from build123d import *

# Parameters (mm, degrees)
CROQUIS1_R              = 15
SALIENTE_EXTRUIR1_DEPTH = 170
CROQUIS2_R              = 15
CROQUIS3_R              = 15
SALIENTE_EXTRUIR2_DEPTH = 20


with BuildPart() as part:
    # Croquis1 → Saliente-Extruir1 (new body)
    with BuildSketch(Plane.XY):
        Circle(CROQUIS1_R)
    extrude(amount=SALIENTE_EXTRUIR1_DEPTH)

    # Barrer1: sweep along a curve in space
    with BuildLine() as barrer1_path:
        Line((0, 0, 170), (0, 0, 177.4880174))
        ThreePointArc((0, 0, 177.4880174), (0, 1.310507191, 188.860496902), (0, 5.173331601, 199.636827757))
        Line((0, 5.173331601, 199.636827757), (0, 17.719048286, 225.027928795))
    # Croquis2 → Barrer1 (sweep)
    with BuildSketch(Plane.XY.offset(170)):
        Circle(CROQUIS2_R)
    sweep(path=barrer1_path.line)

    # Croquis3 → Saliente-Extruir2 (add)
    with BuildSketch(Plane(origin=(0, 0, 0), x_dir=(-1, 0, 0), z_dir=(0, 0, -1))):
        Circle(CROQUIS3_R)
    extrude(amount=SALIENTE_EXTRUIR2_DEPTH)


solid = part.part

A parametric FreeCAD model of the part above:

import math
import FreeCAD as App
import Part
import Sketcher

doc = App.newDocument("Part")
body = doc.addObject("PartDesign::Body", "Body")

# Sketch on XY plane
sketch1 = body.newObject("Sketcher::SketchObject", "Sketch")
sketch1.AttachmentSupport = (doc.getObject("XY_Plane"), [""])
sketch1.MapMode = "FlatFace"
sketch1.addGeometry(Part.Circle(App.Vector(0, 0, 0), App.Vector(0, 0, 1), 15), False)
sketch1.addConstraint([
    Sketcher.Constraint("Coincident", 0, 3, -1, 1),
    Sketcher.Constraint("Diameter", 0, 30.0),
])
pad1 = body.newObject("PartDesign::Pad", "Pad")
pad1.Profile = sketch1
pad1.Length = 170

# Sketch on XY plane
sketch2 = body.newObject("Sketcher::SketchObject", "Sketch001")
sketch2.AttachmentSupport = (doc.getObject("XY_Plane"), [""])
sketch2.MapMode = "FlatFace"
sketch2.AttachmentOffset = App.Placement(App.Vector(0, 0, 170), App.Rotation())
sketch2.addGeometry(Part.Circle(App.Vector(0, 0, 0), App.Vector(0, 0, 1), 15), False)
sketch2.addConstraint([
    Sketcher.Constraint("Coincident", 0, 3, -1, 1),
    Sketcher.Constraint("Diameter", 0, 30.0),
])

# Sketch on YZ plane
sketch3 = body.newObject("Sketcher::SketchObject", "Sketch002")
sketch3.AttachmentSupport = (doc.getObject("YZ_Plane"), [""])
sketch3.MapMode = "FlatFace"
sketch3.addGeometry([
    Part.LineSegment(App.Vector(0, 170, 0), App.Vector(0, 177.488017, 0)),
    Part.ArcOfCircle(Part.Circle(App.Vector(50, 177.488017, 0), App.Vector(0, 0, 1), 50), math.radians(153.70607), math.radians(180)),
    Part.LineSegment(App.Vector(5.173332, 199.636828, 0), App.Vector(17.719048, 225.027929, 0)),
], False)
sketch3.addConstraint([
    Sketcher.Constraint("Tangent", 0, 2, 1, 2),
    Sketcher.Constraint("Tangent", 1, 1, 2, 1),
    Sketcher.Constraint("Vertical", 0),
    Sketcher.Constraint("PointOnObject", 0, 1, -2),
    Sketcher.Constraint("Radius", 1, 50.0),
    Sketcher.Constraint("DistanceY", -1, 1, 0, 1, 170.0),
    Sketcher.Constraint("DistanceY", 1, 1, 2, 2, 25.391101),
    Sketcher.Constraint("DistanceY", 0, 1, 0, 2, 7.488017),
    Sketcher.Constraint("DistanceX", -1, 1, 1, 1, 5.173332),
])
doc.recompute()

additivepipe = body.newObject("PartDesign::AdditivePipe", "AdditivePipe")
additivepipe.Profile = sketch2
additivepipe.Spine = (sketch3, ["Edge1", "Edge2", "Edge3"])

# Sketch on XY plane
sketch4 = body.newObject("Sketcher::SketchObject", "Sketch003")
sketch4.AttachmentSupport = (doc.getObject("XY_Plane"), [""])
sketch4.MapMode = "FlatFace"
sketch4.addGeometry(Part.Circle(App.Vector(0, 0, 0), App.Vector(0, 0, 1), 15), False)
sketch4.addConstraint([
    Sketcher.Constraint("Coincident", 0, 3, -1, 1),
    Sketcher.Constraint("Diameter", 0, 30.0),
])
pad2 = body.newObject("PartDesign::Pad", "Pad001")
pad2.Profile = sketch4
pad2.Length = 20
pad2.Reversed = True

doc.recompute()
